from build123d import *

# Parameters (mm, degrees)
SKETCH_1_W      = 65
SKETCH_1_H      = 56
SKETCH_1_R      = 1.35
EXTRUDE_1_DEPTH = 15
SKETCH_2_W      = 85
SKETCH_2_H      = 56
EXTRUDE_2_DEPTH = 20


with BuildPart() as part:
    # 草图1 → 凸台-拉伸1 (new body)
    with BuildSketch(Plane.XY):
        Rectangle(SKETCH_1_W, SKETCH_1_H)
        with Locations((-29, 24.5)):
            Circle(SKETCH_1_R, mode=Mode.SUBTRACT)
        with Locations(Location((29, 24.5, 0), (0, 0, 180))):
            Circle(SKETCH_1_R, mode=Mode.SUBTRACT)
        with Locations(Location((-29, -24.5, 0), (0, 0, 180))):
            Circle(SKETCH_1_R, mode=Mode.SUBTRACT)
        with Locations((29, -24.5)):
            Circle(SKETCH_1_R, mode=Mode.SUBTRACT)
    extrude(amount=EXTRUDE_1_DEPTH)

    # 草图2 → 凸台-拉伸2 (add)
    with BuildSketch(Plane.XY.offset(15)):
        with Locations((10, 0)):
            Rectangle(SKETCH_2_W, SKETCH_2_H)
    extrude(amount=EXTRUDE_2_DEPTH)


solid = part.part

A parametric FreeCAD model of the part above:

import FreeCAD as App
import Part
import Sketcher

V = App.Vector


def add_polygon(sketch, points):
    """Adds a closed chain of lines whose ends are joined by coincident constraints."""
    first, n = sketch.GeometryCount, len(points)
    for a, b in zip(points, points[1:] + points[:1]):
        sketch.addGeometry(Part.LineSegment(App.Vector(*a, 0), App.Vector(*b, 0)), False)
    for i in range(n):
        sketch.addConstraint(Sketcher.Constraint("Coincident", first + i, 2, first + (i + 1) % n, 1))

doc = App.newDocument("Part")
body = doc.addObject("PartDesign::Body", "Body")

# Sketch on XY plane
sketch1 = doc.addObject("Sketcher::SketchObject", "Sketch")
body.addObject(sketch1)
sketch1.AttachmentSupport = (doc.XY_Plane, [""])
sketch1.MapMode = "FlatFace"
add_polygon(sketch1, [(-32.5, 28), (-32.5, -28), (32.5, -28), (32.5, 28)])  # lines 0-3
sketch1.addGeometry(Part.Circle(V(-29, -24.5, 0), V(0, 0, 1), 1.35), False)  # 4
sketch1.addGeometry(Part.Circle(V(29, -24.5, 0), V(0, 0, 1), 1.35), False)  # 5
sketch1.addGeometry(Part.Circle(V(-29, 24.5, 0), V(0, 0, 1), 1.35), False)  # 6
sketch1.addGeometry(Part.Circle(V(29, 24.5, 0), V(0, 0, 1), 1.35), False)  # 7
sketch1.addConstraint(Sketcher.Constraint("Vertical", 0))
sketch1.addConstraint(Sketcher.Constraint("Horizontal", 1))
sketch1.addConstraint(Sketcher.Constraint("Vertical", 2))
sketch1.addConstraint(Sketcher.Constraint("Horizontal", 3))
sketch1.addConstraint(Sketcher.Constraint("Equal", 4, 5))
sketch1.addConstraint(Sketcher.Constraint("Equal", 5, 6))
sketch1.addConstraint(Sketcher.Constraint("Equal", 6, 7))
sketch1.addConstraint(Sketcher.Constraint("Symmetric", 5, 3, 6, 3, -1, 1))
sketch1.addConstraint(Sketcher.Constraint("Symmetric", 4, 3, 7, 3, -1, 1))
sketch1.addConstraint(Sketcher.Constraint("Symmetric", 0, 2, 2, 2, -1, 1))
sketch1.addConstraint(Sketcher.Constraint("Symmetric", 4, 3, 5, 3, -2))
sketch1.addConstraint(Sketcher.Constraint("Diameter", 4, 2.7))
sketch1.addConstraint(Sketcher.Constraint("DistanceX", 1, 1, 1, 2, 65.0))
sketch1.addConstraint(Sketcher.Constraint("DistanceY", 0, 2, 0, 1, 56.0))
sketch1.addConstraint(Sketcher.Constraint("DistanceX", 4, 3, -1, 1, 29.0))
sketch1.addConstraint(Sketcher.Constraint("DistanceY", 4, 3, 6, 3, 49.0))
pad1 = doc.addObject("PartDesign::Pad", "Pad")
body.addObject(pad1)
pad1.Profile = sketch1
pad1.Length = 15

# Sketch on XY plane
sketch2 = doc.addObject("Sketcher::SketchObject", "Sketch001")
body.addObject(sketch2)
sketch2.AttachmentSupport = (doc.XY_Plane, [""])
sketch2.MapMode = "FlatFace"
sketch2.AttachmentOffset = App.Placement(V(0, 0, 15), App.Rotation())
add_polygon(sketch2, [(-32.5, 28), (-32.5, -28), (52.5, -28), (52.5, 28)])  # lines 0-3
sketch2.addConstraint(Sketcher.Constraint("Vertical", 0))
sketch2.addConstraint(Sketcher.Constraint("Horizontal", 1))
sketch2.addConstraint(Sketcher.Constraint("Vertical", 2))
sketch2.addConstraint(Sketcher.Constraint("Horizontal", 3))
sketch2.addConstraint(Sketcher.Constraint("DistanceX", 1, 1, 1, 2, 85.0))
sketch2.addConstraint(Sketcher.Constraint("DistanceY", 0, 2, 0, 1, 56.0))
sketch2.addConstraint(Sketcher.Constraint("DistanceY", 0, 2, -1, 1, 28.0))
sketch2.addConstraint(Sketcher.Constraint("DistanceX", 0, 2, -1, 1, 32.5))
pad2 = doc.addObject("PartDesign::Pad", "Pad001")
body.addObject(pad2)
pad2.Profile = sketch2
pad2.Length = 20

doc.recompute()
